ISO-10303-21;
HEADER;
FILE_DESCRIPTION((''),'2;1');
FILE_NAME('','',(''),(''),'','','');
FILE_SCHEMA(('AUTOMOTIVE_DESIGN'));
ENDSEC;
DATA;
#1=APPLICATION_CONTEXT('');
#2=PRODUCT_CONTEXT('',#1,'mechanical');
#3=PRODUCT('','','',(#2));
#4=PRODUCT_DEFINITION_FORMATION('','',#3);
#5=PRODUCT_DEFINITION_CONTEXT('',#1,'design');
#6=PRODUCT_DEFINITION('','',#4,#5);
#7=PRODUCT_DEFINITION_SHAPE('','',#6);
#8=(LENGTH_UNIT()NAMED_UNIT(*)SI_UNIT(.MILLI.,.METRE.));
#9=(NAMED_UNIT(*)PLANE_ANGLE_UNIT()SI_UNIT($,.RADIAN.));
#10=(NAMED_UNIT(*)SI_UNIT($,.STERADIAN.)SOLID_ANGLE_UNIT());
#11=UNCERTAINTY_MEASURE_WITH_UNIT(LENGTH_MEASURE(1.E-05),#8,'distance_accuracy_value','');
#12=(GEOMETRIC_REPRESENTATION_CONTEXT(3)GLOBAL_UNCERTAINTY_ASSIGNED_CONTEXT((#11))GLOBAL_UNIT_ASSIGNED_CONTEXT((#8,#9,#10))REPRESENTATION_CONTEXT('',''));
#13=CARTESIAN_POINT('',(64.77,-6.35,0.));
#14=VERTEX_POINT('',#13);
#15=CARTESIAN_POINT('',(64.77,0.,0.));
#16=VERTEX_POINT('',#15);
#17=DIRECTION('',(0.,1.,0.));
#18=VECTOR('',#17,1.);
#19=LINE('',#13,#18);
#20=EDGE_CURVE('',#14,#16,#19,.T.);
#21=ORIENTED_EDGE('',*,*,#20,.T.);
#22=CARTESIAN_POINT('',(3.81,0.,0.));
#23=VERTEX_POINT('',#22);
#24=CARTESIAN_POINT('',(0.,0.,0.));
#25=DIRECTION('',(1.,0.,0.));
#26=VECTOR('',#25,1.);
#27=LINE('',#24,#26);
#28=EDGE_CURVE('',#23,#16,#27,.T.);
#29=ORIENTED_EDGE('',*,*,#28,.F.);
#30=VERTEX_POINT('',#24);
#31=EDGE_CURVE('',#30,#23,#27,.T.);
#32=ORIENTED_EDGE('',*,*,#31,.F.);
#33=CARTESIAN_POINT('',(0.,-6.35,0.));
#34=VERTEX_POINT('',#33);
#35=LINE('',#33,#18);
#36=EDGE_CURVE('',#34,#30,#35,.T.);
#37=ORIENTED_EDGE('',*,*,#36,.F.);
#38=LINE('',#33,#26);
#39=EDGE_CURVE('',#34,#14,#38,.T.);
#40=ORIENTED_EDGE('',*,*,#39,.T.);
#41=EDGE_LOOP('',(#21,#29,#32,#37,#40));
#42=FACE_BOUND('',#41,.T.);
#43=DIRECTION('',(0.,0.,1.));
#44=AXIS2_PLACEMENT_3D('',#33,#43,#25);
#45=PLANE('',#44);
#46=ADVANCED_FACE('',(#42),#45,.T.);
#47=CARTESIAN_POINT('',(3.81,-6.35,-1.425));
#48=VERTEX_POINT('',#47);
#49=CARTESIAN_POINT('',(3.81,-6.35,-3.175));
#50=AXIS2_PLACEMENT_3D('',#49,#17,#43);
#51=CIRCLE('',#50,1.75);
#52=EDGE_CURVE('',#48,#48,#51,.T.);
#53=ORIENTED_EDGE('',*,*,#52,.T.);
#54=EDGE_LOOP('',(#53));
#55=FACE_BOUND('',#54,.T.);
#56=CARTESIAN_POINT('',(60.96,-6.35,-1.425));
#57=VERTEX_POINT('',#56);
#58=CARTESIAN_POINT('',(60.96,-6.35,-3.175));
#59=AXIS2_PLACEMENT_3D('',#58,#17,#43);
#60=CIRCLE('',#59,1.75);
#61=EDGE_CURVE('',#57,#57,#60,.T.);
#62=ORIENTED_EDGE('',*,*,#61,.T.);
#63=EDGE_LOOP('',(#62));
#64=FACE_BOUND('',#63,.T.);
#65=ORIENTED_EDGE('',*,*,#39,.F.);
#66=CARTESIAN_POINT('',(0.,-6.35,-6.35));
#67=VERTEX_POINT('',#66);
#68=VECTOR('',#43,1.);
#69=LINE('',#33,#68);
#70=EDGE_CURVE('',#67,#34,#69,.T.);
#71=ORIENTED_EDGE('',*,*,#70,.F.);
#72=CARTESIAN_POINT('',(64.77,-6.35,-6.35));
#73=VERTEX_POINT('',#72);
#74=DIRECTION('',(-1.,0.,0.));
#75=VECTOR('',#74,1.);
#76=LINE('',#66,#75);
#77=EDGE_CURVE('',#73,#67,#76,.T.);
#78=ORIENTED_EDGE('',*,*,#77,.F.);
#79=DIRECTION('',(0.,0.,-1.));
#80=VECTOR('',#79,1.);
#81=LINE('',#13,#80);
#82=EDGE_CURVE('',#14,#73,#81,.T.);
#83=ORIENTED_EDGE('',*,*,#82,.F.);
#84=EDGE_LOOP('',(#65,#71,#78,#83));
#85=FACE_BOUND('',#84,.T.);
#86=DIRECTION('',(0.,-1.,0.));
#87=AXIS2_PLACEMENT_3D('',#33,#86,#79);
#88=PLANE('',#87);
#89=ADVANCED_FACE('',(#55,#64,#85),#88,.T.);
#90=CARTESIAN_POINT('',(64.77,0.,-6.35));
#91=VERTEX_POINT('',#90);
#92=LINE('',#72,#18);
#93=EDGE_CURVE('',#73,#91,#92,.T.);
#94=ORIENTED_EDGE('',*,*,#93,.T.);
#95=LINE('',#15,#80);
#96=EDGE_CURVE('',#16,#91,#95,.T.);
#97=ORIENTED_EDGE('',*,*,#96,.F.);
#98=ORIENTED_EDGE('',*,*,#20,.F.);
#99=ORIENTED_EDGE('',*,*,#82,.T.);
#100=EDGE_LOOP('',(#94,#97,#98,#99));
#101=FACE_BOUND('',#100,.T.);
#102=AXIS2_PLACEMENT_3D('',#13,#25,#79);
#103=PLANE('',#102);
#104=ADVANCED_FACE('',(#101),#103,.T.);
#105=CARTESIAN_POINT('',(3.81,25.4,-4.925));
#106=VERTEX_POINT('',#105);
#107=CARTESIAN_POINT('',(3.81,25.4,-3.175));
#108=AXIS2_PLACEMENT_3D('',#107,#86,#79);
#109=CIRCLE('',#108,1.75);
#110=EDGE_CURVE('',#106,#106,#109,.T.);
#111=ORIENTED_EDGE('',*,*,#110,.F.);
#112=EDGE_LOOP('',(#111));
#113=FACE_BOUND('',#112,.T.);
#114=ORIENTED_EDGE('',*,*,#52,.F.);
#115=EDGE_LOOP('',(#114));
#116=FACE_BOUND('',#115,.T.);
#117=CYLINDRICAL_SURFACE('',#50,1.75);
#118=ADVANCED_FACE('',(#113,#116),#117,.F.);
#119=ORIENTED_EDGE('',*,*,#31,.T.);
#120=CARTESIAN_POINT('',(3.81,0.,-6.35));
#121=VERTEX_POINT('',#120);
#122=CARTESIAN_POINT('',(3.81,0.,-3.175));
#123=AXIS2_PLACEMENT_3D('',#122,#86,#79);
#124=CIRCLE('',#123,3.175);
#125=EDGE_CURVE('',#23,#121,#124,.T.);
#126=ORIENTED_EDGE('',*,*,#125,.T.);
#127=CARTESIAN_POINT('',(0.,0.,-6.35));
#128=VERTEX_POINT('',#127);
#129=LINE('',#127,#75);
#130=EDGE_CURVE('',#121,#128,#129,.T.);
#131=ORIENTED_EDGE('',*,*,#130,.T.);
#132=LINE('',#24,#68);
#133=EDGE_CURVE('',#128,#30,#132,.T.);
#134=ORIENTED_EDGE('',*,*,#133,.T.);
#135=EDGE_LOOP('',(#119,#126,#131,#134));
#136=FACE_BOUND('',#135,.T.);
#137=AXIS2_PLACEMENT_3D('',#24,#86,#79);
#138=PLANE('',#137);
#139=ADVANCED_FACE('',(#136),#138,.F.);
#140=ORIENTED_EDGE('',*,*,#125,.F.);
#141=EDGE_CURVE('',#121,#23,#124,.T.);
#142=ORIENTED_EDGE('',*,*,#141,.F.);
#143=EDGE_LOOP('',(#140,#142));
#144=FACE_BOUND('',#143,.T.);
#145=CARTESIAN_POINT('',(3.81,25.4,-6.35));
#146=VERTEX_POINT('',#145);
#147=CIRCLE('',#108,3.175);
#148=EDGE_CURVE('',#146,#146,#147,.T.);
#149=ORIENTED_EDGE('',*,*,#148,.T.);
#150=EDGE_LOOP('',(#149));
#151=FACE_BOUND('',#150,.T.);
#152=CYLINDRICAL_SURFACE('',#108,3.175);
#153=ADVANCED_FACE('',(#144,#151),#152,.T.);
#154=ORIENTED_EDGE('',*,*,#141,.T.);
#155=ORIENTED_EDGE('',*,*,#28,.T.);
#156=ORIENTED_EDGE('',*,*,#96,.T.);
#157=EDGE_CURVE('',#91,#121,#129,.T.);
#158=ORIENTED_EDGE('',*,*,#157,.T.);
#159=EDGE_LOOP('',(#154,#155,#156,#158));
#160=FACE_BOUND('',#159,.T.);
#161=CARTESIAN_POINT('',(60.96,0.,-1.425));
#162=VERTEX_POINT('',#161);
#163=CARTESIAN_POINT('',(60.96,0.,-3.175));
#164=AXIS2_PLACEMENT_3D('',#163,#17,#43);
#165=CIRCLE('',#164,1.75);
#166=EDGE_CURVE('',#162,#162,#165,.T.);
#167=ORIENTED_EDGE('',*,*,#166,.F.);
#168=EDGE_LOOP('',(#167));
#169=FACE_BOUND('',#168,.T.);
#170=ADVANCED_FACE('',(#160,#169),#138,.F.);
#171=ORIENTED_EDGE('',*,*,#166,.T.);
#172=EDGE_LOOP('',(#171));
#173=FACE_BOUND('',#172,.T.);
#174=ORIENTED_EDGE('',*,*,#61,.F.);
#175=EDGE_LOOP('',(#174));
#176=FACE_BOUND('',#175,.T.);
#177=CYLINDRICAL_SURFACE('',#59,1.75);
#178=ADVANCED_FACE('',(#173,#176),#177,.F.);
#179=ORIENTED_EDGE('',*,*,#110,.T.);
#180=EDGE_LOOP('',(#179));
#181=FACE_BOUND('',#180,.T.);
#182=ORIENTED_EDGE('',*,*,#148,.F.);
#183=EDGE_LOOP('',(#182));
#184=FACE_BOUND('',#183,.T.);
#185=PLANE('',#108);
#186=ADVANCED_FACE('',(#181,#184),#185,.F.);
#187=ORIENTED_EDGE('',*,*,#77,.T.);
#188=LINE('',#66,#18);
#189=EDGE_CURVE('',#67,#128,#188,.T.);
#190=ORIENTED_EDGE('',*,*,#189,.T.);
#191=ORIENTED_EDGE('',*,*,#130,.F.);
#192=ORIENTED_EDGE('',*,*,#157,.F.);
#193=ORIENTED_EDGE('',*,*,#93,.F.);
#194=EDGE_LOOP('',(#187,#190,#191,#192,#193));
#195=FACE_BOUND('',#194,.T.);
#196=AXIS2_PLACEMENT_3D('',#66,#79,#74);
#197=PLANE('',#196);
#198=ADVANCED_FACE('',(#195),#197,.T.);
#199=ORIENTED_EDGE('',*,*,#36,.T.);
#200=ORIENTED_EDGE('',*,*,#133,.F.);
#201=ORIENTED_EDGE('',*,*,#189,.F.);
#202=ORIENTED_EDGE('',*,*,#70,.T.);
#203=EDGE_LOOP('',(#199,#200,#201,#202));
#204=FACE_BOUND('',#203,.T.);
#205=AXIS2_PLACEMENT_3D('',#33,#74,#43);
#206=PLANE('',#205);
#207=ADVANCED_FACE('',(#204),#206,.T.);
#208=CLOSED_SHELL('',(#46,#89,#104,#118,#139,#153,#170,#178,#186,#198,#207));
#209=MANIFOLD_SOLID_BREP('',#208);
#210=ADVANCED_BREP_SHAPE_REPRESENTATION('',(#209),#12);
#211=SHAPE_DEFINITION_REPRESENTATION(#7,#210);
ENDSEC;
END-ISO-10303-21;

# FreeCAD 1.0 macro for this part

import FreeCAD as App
import Part
import Sketcher

V = App.Vector
Q = App.Units.Quantity


def add_polygon(sketch, points):
    """Adds a closed chain of lines whose ends are joined by coincident constraints."""
    first, n = sketch.GeometryCount, len(points)
    for a, b in zip(points, points[1:] + points[:1]):
        sketch.addGeometry(Part.LineSegment(App.Vector(*a, 0), App.Vector(*b, 0)), False)
    for i in range(n):
        sketch.addConstraint(Sketcher.Constraint("Coincident", first + i, 2, first + (i + 1) % n, 1))

doc = App.newDocument("Part")
params = doc.addObject("Spreadsheet::Sheet", "Params")
for row, (alias, value) in enumerate([
    ("sketch1_width", "2.55 in"),
    ("sketch1_height", "0.25 in"),
    ("pad1_length", "0.25 in"),
    ("sketch2_diameter", "0.25 in"),
    ("pad2_length", "1 in"),
], start=1):
    params.set(f"A{row}", alias)
    params.set(f"B{row}", "=" + value)
    params.setAlias(f"B{row}", alias)

body = doc.addObject("PartDesign::Body", "Body")

# Sketch on XZ plane
sketch1 = body.newObject("Sketcher::SketchObject", "Sketch")
sketch1.AttachmentSupport = (doc.getObject("XZ_Plane"), [""])
sketch1.MapMode = "FlatFace"
add_polygon(sketch1, [(0, -6.3), (0, 0), (64.8, 0), (64.8, -6.3)])  # lines 0-3
sketch1.addGeometry(Part.Circle(V(3.8, -3.2, 0), V(0, 0, 1), 1.8), False)  # 4
sketch1.addGeometry(Part.Circle(V(61, -3.2, 0), V(0, 0, 1), 1.8), False)  # 5
sketch1.addConstraint([
    Sketcher.Constraint("Vertical", 0),
    Sketcher.Constraint("Horizontal", 1),
    Sketcher.Constraint("Vertical", 2),
    Sketcher.Constraint("Horizontal", 3),
    Sketcher.Constraint("Coincident", 0, 2, -1, 1),
    Sketcher.Constraint("Equal", 4, 5),
    Sketcher.Constraint("Horizontal", 4, 3, 5, 3),
    Sketcher.Constraint("DistanceX", 1, 1, 1, 2, Q("2.55 in")),
    Sketcher.Constraint("DistanceY", 0, 1, 0, 2, Q("0.25 in")),
    Sketcher.Constraint("DistanceX", -1, 1, 5, 3, Q("2.4 in")),
    Sketcher.Constraint("DistanceX", 4, 3, 1, 2, Q("2.4 in")),
    Sketcher.Constraint("Diameter", 4, Q("3.5 mm")),
    Sketcher.Constraint("DistanceY", 4, 3, -1, 1, Q("0.125 in")),
])
sketch1.setExpression("Constraints[11]", "Params.sketch1_width")
sketch1.setExpression("Constraints[12]", "Params.sketch1_height")
pad1 = body.newObject("PartDesign::Pad", "Pad")
pad1.Profile = sketch1
pad1.setExpression("Length", "Params.pad1_length")

# Sketch on XZ plane
sketch2 = body.newObject("Sketcher::SketchObject", "Sketch001")
sketch2.AttachmentSupport = (doc.getObject("XZ_Plane"), [""])
sketch2.MapMode = "FlatFace"
sketch2.AttachmentOffset = App.Placement(V(0, 0, -1 * 25.4), App.Rotation())
sketch2.addGeometry([
    Part.Circle(V(3.8, -3.2, 0), V(0, 0, 1), 3.2),
    Part.Circle(V(3.8, -3.2, 0), V(0, 0, 1), 1.8),
], False)
sketch2.addConstraint([
    Sketcher.Constraint("Coincident", 1, 3, 0, 3),
    Sketcher.Constraint("Diameter", 0, Q("0.25 in")),
    Sketcher.Constraint("Diameter", 1, Q("3.5 mm")),
    Sketcher.Constraint("DistanceX", -1, 1, 0, 3, Q("0.15 in")),
    Sketcher.Constraint("DistanceY", 0, 3, -1, 1, Q("0.125 in")),
])
sketch2.setExpression("Constraints[1]", "Params.sketch2_diameter")
pad2 = body.newObject("PartDesign::Pad", "Pad001")
pad2.Profile = sketch2
pad2.setExpression("Length", "Params.pad2_length")

doc.recompute()
